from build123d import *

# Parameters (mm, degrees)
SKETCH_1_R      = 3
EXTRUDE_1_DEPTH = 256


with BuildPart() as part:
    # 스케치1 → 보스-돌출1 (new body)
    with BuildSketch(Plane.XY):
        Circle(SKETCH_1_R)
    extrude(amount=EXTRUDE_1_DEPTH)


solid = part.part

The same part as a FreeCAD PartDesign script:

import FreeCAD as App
import Part
import Sketcher

doc = App.newDocument("Part")
body = doc.addObject("PartDesign::Body", "Body")

# Sketch on XY plane
sketch1 = body.newObject("Sketcher::SketchObject", "Sketch")
sketch1.AttachmentSupport = (doc.getObject("XY_Plane"), [""])
sketch1.MapMode = "FlatFace"
sketch1.addGeometry(Part.Circle(App.Vector(0, 0, 0), App.Vector(0, 0, 1), 3), False)
sketch1.addConstraint(Sketcher.Constraint("Coincident", 0, 3, -1, 1))
sketch1.addConstraint(Sketcher.Constraint("Diameter", 0, 6.0))
pad1 = body.newObject("PartDesign::Pad", "Pad")
pad1.Profile = sketch1
pad1.Length = 256

doc.recompute()
